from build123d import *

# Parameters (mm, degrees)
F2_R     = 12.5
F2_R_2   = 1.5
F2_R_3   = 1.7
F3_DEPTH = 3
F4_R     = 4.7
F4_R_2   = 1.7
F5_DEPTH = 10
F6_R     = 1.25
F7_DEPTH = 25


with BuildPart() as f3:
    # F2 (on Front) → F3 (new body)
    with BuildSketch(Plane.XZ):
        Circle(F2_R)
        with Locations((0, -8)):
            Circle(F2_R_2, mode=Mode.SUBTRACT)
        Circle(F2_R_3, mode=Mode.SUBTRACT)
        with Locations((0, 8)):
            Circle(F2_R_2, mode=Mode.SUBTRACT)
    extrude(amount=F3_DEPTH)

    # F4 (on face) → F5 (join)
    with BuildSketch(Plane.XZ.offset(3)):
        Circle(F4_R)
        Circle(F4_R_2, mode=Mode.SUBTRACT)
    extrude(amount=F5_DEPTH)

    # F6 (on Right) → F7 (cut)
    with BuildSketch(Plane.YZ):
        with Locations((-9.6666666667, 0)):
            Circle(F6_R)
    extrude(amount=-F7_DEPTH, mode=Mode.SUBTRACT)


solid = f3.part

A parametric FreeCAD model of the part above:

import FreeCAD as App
import Part
import Sketcher
Q = App.Units.Quantity

doc = App.newDocument("Part")
body = doc.addObject("PartDesign::Body", "Body")

# Sketch on XZ plane
sketch1 = body.newObject("Sketcher::SketchObject", "Sketch")
sketch1.AttachmentSupport = (doc.getObject("XZ_Plane"), [""])
sketch1.MapMode = "FlatFace"
sketch1.addGeometry(Part.Circle(App.Vector(0, 0, 0), App.Vector(0, 0, 1), 12.5), False)
sketch1.addGeometry(Part.Circle(App.Vector(0, -8, 0), App.Vector(0, 0, 1), 1.5), False)
sketch1.addGeometry(Part.Circle(App.Vector(0, 0, 0), App.Vector(0, 0, 1), 1.7), False)
sketch1.addGeometry(Part.Circle(App.Vector(0, 8, 0), App.Vector(0, 0, 1), 1.5), False)
sketch1.addConstraint(Sketcher.Constraint("Coincident", 0, 3, -1, 1))
sketch1.addConstraint(Sketcher.Constraint("Coincident", 2, 3, -1, 1))
sketch1.addConstraint(Sketcher.Constraint("Equal", 1, 3))
sketch1.addConstraint(Sketcher.Constraint("Symmetric", 1, 3, 3, 3, -1, 1))
sketch1.addConstraint(Sketcher.Constraint("PointOnObject", 1, 3, -2))
sketch1.addConstraint(Sketcher.Constraint("Diameter", 0, Q("25 mm")))
sketch1.addConstraint(Sketcher.Constraint("Diameter", 1, Q("3 mm")))
sketch1.addConstraint(Sketcher.Constraint("Diameter", 2, Q("3.4 mm")))
sketch1.addConstraint(Sketcher.Constraint("DistanceY", 1, 3, -1, 1, Q("8 mm")))
pad1 = body.newObject("PartDesign::Pad", "Pad")
pad1.Profile = sketch1
pad1.Length = 3

# Sketch on XZ plane
sketch2 = body.newObject("Sketcher::SketchObject", "Sketch001")
sketch2.AttachmentSupport = (doc.getObject("XZ_Plane"), [""])
sketch2.MapMode = "FlatFace"
sketch2.AttachmentOffset = App.Placement(App.Vector(0, 0, 3), App.Rotation())
sketch2.addGeometry(Part.Circle(App.Vector(0, 0, 0), App.Vector(0, 0, 1), 4.7), False)
sketch2.addGeometry(Part.Circle(App.Vector(0, 0, 0), App.Vector(0, 0, 1), 1.7), False)
sketch2.addConstraint(Sketcher.Constraint("Coincident", 0, 3, -1, 1))
sketch2.addConstraint(Sketcher.Constraint("Coincident", 1, 3, -1, 1))
sketch2.addConstraint(Sketcher.Constraint("Diameter", 0, Q("9.4 mm")))
sketch2.addConstraint(Sketcher.Constraint("Diameter", 1, Q("3.4 mm")))
pad2 = body.newObject("PartDesign::Pad", "Pad001")
pad2.Profile = sketch2
pad2.Length = 10

# Sketch on YZ plane
sketch3 = body.newObject("Sketcher::SketchObject", "Sketch002")
sketch3.AttachmentSupport = (doc.getObject("YZ_Plane"), [""])
sketch3.MapMode = "FlatFace"
sketch3.addGeometry(Part.Circle(App.Vector(-9.7, 0, 0), App.Vector(0, 0, 1), 1.2), False)
sketch3.addConstraint(Sketcher.Constraint("PointOnObject", 0, 3, -1))
sketch3.addConstraint(Sketcher.Constraint("Diameter", 0, Q("2.5 mm")))
sketch3.addConstraint(Sketcher.Constraint("DistanceX", 0, 3, -1, 1, Q("9.666667 mm")))
pocket1 = body.newObject("PartDesign::Pocket", "Pocket")
pocket1.Profile = sketch3
pocket1.Length = 25

doc.recompute()
